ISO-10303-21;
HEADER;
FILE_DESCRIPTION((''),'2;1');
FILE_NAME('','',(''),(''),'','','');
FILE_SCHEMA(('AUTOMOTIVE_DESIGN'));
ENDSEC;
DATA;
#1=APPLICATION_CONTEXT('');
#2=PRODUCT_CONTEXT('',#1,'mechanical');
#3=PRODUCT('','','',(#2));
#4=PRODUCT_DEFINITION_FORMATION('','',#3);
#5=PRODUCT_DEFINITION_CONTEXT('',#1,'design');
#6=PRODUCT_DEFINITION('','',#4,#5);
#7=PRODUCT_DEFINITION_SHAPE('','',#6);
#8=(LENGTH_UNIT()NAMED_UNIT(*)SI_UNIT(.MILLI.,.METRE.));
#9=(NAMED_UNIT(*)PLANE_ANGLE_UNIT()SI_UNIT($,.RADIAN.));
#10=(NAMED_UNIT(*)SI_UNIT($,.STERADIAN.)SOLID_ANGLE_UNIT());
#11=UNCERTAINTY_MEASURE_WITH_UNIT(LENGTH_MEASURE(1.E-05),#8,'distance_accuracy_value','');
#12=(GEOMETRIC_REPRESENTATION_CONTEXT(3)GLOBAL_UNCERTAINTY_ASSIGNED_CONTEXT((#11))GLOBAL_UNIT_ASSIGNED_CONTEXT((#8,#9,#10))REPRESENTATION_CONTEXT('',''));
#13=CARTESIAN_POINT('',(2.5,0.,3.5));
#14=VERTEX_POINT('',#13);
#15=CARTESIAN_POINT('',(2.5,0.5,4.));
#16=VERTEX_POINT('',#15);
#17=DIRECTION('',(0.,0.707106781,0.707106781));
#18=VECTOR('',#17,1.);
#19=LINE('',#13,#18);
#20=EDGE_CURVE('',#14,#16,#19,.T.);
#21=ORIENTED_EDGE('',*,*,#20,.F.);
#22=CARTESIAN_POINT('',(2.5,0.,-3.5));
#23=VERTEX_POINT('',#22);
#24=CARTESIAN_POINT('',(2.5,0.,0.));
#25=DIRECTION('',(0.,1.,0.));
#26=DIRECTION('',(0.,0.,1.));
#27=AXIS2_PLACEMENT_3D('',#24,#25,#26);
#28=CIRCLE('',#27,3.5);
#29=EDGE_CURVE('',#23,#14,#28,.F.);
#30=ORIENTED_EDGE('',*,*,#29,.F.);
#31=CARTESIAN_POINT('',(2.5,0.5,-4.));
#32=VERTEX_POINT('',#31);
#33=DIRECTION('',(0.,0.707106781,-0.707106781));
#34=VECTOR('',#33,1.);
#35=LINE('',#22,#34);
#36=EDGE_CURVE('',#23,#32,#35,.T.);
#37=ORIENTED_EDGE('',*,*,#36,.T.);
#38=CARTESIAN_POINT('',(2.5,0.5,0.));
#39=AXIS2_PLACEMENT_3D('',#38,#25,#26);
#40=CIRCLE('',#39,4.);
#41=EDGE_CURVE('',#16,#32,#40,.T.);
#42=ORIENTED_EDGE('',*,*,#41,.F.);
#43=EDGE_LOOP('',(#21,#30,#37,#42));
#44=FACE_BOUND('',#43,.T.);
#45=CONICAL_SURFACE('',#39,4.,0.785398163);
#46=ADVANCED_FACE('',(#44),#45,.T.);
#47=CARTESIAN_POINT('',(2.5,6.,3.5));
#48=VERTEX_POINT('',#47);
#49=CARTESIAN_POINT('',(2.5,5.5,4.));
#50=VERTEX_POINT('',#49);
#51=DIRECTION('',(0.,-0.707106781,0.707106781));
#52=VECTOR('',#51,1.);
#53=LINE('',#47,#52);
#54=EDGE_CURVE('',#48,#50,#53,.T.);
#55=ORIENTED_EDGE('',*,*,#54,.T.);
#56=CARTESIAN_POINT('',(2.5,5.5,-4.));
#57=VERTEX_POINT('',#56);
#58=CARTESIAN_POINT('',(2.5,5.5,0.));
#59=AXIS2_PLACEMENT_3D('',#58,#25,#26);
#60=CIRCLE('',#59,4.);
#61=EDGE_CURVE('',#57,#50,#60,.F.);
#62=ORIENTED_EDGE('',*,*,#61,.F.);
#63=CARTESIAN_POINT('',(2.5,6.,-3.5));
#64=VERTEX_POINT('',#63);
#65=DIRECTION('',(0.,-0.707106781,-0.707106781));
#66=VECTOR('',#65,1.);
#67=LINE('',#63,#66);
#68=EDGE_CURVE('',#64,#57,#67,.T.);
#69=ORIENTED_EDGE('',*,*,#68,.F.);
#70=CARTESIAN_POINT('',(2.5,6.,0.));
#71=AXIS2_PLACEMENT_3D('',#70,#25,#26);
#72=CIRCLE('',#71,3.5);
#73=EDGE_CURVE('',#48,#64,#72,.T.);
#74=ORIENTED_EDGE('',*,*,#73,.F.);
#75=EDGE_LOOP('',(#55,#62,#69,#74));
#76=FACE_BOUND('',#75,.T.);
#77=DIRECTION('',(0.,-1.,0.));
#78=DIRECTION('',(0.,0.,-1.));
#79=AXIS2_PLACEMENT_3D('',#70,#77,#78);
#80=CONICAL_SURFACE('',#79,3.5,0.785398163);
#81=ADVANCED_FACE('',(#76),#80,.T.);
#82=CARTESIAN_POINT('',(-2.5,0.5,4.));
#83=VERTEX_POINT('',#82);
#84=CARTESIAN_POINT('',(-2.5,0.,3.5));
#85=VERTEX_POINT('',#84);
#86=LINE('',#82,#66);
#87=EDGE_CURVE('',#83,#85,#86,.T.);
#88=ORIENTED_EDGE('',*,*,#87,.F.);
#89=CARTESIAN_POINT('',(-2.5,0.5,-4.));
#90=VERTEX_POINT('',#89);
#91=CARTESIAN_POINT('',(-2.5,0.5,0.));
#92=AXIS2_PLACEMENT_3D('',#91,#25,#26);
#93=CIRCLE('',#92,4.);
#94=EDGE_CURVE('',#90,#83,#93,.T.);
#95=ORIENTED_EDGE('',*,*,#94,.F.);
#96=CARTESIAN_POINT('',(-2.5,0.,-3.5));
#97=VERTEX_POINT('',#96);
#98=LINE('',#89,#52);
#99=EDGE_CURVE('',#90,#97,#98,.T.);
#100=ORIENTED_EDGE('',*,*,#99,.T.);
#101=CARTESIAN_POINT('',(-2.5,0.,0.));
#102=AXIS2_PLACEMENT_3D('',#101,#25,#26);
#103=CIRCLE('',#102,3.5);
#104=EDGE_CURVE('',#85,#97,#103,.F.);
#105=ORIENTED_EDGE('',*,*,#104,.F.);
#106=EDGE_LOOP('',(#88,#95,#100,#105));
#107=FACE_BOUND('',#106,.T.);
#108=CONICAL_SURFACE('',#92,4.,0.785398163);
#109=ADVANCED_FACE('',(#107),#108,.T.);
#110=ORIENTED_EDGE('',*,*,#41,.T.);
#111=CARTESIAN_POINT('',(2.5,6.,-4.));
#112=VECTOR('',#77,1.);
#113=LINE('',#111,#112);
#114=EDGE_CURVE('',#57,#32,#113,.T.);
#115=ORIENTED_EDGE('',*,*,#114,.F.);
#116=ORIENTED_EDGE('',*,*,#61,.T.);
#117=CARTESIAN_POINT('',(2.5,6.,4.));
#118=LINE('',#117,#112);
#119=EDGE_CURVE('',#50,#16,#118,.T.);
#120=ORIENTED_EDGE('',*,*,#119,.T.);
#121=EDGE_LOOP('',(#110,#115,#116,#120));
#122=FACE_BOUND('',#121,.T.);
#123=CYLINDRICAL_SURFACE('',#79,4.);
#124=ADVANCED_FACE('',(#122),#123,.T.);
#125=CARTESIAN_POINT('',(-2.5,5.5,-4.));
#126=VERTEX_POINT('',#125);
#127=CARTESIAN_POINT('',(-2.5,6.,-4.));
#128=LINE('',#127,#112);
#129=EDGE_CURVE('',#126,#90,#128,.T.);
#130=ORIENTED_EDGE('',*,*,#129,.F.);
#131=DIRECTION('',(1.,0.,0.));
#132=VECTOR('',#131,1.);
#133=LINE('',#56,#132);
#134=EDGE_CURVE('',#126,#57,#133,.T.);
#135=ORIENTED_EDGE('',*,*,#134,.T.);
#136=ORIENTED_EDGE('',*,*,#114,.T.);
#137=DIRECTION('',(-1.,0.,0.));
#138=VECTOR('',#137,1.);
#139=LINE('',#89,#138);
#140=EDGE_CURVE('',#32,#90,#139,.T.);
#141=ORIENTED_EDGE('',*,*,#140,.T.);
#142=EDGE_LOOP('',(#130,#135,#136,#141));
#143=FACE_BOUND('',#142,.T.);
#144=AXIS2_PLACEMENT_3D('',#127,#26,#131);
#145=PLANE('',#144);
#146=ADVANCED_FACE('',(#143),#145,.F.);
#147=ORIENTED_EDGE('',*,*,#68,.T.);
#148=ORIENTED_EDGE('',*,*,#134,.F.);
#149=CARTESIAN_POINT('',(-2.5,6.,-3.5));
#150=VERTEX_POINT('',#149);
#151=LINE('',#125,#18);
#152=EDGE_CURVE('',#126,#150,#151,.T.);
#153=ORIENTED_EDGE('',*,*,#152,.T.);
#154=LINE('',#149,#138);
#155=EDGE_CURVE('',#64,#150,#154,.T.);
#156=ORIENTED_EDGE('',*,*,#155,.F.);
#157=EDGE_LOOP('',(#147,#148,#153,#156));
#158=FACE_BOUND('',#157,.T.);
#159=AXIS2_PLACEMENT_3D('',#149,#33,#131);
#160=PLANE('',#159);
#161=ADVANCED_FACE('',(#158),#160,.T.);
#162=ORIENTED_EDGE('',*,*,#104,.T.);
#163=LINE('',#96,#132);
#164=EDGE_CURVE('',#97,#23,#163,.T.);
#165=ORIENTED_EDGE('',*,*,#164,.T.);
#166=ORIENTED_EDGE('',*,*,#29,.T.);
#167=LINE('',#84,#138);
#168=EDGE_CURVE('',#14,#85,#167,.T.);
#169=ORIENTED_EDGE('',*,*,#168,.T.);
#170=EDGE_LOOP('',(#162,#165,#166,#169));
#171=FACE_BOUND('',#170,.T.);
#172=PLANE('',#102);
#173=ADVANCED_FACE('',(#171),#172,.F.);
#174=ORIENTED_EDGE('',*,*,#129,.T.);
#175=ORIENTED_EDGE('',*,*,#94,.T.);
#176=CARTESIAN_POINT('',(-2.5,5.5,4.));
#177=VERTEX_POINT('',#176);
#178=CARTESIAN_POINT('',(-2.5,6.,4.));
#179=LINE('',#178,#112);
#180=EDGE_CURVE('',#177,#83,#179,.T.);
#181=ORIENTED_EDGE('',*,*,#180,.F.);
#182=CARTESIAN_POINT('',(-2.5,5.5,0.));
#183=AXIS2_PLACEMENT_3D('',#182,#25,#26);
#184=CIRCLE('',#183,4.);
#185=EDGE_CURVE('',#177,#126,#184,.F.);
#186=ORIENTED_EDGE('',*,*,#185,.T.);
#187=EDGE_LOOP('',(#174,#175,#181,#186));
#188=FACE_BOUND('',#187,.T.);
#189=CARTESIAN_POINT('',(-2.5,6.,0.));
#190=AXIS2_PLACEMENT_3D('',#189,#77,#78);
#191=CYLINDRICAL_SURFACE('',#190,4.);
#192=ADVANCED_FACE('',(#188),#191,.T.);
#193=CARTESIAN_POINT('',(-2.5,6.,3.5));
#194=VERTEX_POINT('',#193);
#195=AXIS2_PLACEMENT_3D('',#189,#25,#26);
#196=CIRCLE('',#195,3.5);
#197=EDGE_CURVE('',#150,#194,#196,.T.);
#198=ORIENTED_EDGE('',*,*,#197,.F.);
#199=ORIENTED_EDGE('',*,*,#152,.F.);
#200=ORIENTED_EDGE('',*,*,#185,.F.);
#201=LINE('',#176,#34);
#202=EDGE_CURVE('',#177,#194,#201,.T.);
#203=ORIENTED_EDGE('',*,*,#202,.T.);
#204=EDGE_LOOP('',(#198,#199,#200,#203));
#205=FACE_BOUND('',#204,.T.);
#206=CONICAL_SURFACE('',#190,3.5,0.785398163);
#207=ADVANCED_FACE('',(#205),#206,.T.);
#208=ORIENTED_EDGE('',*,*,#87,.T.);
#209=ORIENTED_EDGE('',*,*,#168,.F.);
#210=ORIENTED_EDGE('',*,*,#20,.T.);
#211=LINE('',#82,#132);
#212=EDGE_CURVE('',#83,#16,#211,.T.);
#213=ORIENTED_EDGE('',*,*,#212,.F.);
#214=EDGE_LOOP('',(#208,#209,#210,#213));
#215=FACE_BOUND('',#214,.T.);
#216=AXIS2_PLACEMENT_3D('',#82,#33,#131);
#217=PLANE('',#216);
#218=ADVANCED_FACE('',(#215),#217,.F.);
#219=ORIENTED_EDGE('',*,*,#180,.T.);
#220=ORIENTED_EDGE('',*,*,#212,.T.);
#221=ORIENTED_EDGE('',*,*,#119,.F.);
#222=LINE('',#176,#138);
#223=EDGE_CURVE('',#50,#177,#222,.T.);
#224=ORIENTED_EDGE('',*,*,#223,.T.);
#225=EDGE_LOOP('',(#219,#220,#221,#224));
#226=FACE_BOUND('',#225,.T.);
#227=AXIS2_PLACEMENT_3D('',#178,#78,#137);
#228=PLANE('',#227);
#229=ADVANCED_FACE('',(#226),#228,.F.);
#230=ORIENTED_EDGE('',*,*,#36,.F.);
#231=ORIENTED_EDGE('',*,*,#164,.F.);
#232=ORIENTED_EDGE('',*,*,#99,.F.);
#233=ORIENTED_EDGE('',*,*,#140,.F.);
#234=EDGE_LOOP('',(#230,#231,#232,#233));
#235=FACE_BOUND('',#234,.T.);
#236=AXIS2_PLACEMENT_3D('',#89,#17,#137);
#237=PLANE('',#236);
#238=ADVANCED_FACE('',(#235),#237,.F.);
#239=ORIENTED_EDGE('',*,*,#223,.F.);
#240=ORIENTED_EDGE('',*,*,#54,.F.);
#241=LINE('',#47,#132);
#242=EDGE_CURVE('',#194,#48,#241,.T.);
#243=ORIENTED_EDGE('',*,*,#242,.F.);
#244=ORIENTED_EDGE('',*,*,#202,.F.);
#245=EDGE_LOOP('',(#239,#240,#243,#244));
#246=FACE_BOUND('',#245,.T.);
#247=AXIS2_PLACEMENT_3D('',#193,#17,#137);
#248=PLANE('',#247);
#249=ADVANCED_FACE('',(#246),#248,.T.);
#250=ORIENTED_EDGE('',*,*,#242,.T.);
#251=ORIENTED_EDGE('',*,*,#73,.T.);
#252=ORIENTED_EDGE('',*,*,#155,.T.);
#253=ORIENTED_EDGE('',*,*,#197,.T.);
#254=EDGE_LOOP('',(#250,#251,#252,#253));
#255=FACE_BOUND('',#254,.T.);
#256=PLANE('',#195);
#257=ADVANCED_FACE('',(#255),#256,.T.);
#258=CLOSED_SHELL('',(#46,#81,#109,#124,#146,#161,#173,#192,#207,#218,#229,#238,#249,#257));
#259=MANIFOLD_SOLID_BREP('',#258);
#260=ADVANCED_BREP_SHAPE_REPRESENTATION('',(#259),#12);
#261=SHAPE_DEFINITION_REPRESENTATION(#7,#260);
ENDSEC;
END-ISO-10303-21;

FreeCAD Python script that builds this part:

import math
import FreeCAD as App
import Part
import Sketcher
from FreeCAD import Vector
Q = App.Units.Quantity


def edges_at(feature, points):
    """Names of the edges that pass closest to the given points."""
    edges = feature.Shape.Edges
    near = lambda p: min(range(len(edges)), key=lambda i: edges[i].distToShape(Part.Vertex(*p))[0])
    return sorted({f"Edge{near(p) + 1}" for p in points})

doc = App.newDocument("Part")
body = doc.addObject("PartDesign::Body", "Body")

# Sketch on XZ plane
sketch1 = body.newObject("Sketcher::SketchObject", "Sketch")
sketch1.AttachmentSupport = (doc.getObject("XZ_Plane"), [""])
sketch1.MapMode = "FlatFace"
sketch1.addGeometry(Part.LineSegment(Vector(2.5, -4, 0), Vector(-2.5, -4, 0)), False)
sketch1.addGeometry(Part.ArcOfCircle(Part.Circle(Vector(-2.5, 0, 0), Vector(0, 0, 1), 4), math.radians(90), math.radians(270)), False)
sketch1.addGeometry(Part.LineSegment(Vector(-2.5, 4, 0), Vector(2.5, 4, 0)), False)
sketch1.addGeometry(Part.ArcOfCircle(Part.Circle(Vector(2.5, 0, 0), Vector(0, 0, 1), 4), math.radians(-90), math.radians(90)), False)
sketch1.addConstraint(Sketcher.Constraint("Tangent", 0, 2, 1, 2))
sketch1.addConstraint(Sketcher.Constraint("Tangent", 1, 1, 2, 1))
sketch1.addConstraint(Sketcher.Constraint("Tangent", 2, 2, 3, 2))
sketch1.addConstraint(Sketcher.Constraint("Tangent", 3, 1, 0, 1))
sketch1.addConstraint(Sketcher.Constraint("Horizontal", 0))
sketch1.addConstraint(Sketcher.Constraint("Horizontal", 2))
sketch1.addConstraint(Sketcher.Constraint("Symmetric", 1, 3, 3, 3, -1, 1))
sketch1.addConstraint(Sketcher.Constraint("Radius", 1, Q("4 mm")))
sketch1.addConstraint(Sketcher.Constraint("DistanceX", 0, 2, 0, 1, Q("5 mm")))
pad1 = body.newObject("PartDesign::Pad", "Pad")
pad1.Profile = sketch1
pad1.Length = 6
pad1.Reversed = True
doc.recompute()

chamfer = body.newObject("PartDesign::Chamfer", "Chamfer")
chamfer.Base = (pad1, edges_at(pad1, [
    (6.5, 6, 0),
    (0, 6, -4),
    (-6.5, 6, 0),
    (0, 0, -4),
    (6.5, 0, 0),
    (0, 0, 4),
    (-6.5, 0, 0),
    (0, 6, 4),
]))
chamfer.Size = 0.5

doc.recompute()
